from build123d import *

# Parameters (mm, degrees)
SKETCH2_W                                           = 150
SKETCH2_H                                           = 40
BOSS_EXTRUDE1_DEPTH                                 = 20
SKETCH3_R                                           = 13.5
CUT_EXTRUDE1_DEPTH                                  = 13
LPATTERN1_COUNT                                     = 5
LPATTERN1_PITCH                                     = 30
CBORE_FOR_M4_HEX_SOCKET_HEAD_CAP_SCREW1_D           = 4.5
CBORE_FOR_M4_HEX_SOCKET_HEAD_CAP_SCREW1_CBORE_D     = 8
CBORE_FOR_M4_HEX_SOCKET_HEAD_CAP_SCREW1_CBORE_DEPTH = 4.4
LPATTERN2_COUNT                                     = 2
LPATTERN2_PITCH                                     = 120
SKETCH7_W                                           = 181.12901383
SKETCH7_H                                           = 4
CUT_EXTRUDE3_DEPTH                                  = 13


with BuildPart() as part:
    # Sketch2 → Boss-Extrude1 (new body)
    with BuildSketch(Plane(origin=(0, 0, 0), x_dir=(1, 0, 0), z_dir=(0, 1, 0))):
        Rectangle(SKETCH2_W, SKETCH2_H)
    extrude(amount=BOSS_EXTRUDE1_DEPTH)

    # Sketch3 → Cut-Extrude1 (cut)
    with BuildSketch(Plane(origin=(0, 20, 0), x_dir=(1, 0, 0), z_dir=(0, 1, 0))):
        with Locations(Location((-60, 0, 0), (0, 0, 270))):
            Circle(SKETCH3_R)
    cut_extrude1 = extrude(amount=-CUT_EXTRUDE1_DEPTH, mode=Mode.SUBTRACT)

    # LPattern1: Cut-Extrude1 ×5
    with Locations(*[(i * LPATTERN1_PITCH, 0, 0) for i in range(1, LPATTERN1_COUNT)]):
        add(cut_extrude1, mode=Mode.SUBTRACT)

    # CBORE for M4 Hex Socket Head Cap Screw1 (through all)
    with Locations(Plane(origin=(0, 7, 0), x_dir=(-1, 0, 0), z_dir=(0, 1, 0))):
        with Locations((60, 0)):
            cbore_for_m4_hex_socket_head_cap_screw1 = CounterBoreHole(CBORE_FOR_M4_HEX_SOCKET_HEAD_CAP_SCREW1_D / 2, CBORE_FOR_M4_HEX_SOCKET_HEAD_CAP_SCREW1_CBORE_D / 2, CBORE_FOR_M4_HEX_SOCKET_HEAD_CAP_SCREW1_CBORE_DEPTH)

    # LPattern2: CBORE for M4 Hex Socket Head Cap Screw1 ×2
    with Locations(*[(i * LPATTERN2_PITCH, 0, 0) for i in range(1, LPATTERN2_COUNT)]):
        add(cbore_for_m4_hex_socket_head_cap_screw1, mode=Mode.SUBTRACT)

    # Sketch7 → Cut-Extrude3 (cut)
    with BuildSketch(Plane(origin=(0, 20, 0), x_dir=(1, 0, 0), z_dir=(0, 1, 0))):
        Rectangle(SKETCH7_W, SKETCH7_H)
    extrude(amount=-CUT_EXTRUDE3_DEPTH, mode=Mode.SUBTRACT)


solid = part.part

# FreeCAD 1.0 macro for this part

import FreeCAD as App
import Part
import Sketcher


def add_polygon(sketch, points):
    """Adds a closed chain of lines whose ends are joined by coincident constraints."""
    first, n = sketch.GeometryCount, len(points)
    for a, b in zip(points, points[1:] + points[:1]):
        sketch.addGeometry(Part.LineSegment(App.Vector(*a, 0), App.Vector(*b, 0)), False)
    for i in range(n):
        sketch.addConstraint(Sketcher.Constraint("Coincident", first + i, 2, first + (i + 1) % n, 1))

doc = App.newDocument("Part")
body = doc.addObject("PartDesign::Body", "Body")

# Sketch on XZ plane
sketch1 = body.newObject("Sketcher::SketchObject", "Sketch")
sketch1.AttachmentSupport = (doc.getObject("XZ_Plane"), [""])
sketch1.MapMode = "FlatFace"
add_polygon(sketch1, [(-75, -20), (-75, 20), (75, 20), (75, -20)])  # lines 0-3
sketch1.addConstraint([
    Sketcher.Constraint("Vertical", 0),
    Sketcher.Constraint("Horizontal", 1),
    Sketcher.Constraint("Vertical", 2),
    Sketcher.Constraint("Horizontal", 3),
    Sketcher.Constraint("Symmetric", 0, 2, 2, 2, -1, 1),
    Sketcher.Constraint("DistanceX", 1, 1, 1, 2, 150.0),
    Sketcher.Constraint("DistanceY", 0, 1, 0, 2, 40.0),
])
pad1 = body.newObject("PartDesign::Pad", "Pad")
pad1.Profile = sketch1
pad1.Length = 20
pad1.Reversed = True

# Sketch on XZ plane
sketch2 = body.newObject("Sketcher::SketchObject", "Sketch001")
sketch2.AttachmentSupport = (doc.getObject("XZ_Plane"), [""])
sketch2.MapMode = "FlatFace"
sketch2.AttachmentOffset = App.Placement(App.Vector(0, 0, -20), App.Rotation())
sketch2.addGeometry(Part.Circle(App.Vector(-60, 0, 0), App.Vector(0, 0, 1), 14), False)
sketch2.addConstraint([
    Sketcher.Constraint("PointOnObject", 0, 3, -1),
    Sketcher.Constraint("Diameter", 0, 27.0),
    Sketcher.Constraint("DistanceX", 0, 3, -1, 1, 60.0),
])
pocket1 = body.newObject("PartDesign::Pocket", "Pocket")
pocket1.Profile = sketch2
pocket1.Length = 13
pocket1.Reversed = True
doc.recompute()

linearpattern = body.newObject("PartDesign::LinearPattern", "LinearPattern")
linearpattern.Originals = [pocket1]
linearpattern.Direction = (doc.getObject("X_Axis"), [""])
linearpattern.Mode = "offset"
linearpattern.Offset = 30
linearpattern.Occurrences = 5
body.Tip = linearpattern

# Sketch on XZ plane
sketch3 = body.newObject("Sketcher::SketchObject", "Sketch002")
sketch3.AttachmentSupport = (doc.getObject("XZ_Plane"), [""])
sketch3.MapMode = "FlatFace"
sketch3.AttachmentOffset = App.Placement(App.Vector(0, 0, -7), App.Rotation())
sketch3.addGeometry(Part.Circle(App.Vector(-60, 0, 0), App.Vector(0, 0, 1), 2.2), False)
sketch3.addConstraint([
    Sketcher.Constraint("PointOnObject", 0, 3, -1),
    Sketcher.Constraint("Diameter", 0, 4.5),
    Sketcher.Constraint("DistanceX", 0, 3, -1, 1, 60.0),
])
doc.recompute()
hole = body.newObject("PartDesign::Hole", "Hole")
hole.Profile = sketch3
hole.ThreadType = "None"
hole.Diameter = 4.5
hole.DepthType = "ThroughAll"
hole.HoleCutType = "Counterbore"
hole.HoleCutDiameter = 8
hole.HoleCutDepth = 4.4
hole.Reversed = True
doc.recompute()

linearpattern2 = body.newObject("PartDesign::LinearPattern", "LinearPattern001")
linearpattern2.Originals = [hole]
linearpattern2.Direction = (doc.getObject("X_Axis"), [""])
linearpattern2.Mode = "offset"
linearpattern2.Offset = 120
linearpattern2.Occurrences = 2
body.Tip = linearpattern2

# Sketch on XZ plane
sketch4 = body.newObject("Sketcher::SketchObject", "Sketch003")
sketch4.AttachmentSupport = (doc.getObject("XZ_Plane"), [""])
sketch4.MapMode = "FlatFace"
sketch4.AttachmentOffset = App.Placement(App.Vector(0, 0, -20), App.Rotation())
add_polygon(sketch4, [(-90.6, -2), (-90.6, 2), (90.6, 2), (90.6, -2)])  # lines 0-3
sketch4.addConstraint([
    Sketcher.Constraint("Vertical", 0),
    Sketcher.Constraint("Horizontal", 1),
    Sketcher.Constraint("Vertical", 2),
    Sketcher.Constraint("Horizontal", 3),
    Sketcher.Constraint("Symmetric", 0, 2, 2, 2, -1, 1),
    Sketcher.Constraint("DistanceY", 0, 1, 0, 2, 4.0),
    Sketcher.Constraint("DistanceX", 1, 1, 1, 2, 181.129014),
])
pocket2 = body.newObject("PartDesign::Pocket", "Pocket001")
pocket2.Profile = sketch4
pocket2.Length = 13
pocket2.Reversed = True

doc.recompute()
